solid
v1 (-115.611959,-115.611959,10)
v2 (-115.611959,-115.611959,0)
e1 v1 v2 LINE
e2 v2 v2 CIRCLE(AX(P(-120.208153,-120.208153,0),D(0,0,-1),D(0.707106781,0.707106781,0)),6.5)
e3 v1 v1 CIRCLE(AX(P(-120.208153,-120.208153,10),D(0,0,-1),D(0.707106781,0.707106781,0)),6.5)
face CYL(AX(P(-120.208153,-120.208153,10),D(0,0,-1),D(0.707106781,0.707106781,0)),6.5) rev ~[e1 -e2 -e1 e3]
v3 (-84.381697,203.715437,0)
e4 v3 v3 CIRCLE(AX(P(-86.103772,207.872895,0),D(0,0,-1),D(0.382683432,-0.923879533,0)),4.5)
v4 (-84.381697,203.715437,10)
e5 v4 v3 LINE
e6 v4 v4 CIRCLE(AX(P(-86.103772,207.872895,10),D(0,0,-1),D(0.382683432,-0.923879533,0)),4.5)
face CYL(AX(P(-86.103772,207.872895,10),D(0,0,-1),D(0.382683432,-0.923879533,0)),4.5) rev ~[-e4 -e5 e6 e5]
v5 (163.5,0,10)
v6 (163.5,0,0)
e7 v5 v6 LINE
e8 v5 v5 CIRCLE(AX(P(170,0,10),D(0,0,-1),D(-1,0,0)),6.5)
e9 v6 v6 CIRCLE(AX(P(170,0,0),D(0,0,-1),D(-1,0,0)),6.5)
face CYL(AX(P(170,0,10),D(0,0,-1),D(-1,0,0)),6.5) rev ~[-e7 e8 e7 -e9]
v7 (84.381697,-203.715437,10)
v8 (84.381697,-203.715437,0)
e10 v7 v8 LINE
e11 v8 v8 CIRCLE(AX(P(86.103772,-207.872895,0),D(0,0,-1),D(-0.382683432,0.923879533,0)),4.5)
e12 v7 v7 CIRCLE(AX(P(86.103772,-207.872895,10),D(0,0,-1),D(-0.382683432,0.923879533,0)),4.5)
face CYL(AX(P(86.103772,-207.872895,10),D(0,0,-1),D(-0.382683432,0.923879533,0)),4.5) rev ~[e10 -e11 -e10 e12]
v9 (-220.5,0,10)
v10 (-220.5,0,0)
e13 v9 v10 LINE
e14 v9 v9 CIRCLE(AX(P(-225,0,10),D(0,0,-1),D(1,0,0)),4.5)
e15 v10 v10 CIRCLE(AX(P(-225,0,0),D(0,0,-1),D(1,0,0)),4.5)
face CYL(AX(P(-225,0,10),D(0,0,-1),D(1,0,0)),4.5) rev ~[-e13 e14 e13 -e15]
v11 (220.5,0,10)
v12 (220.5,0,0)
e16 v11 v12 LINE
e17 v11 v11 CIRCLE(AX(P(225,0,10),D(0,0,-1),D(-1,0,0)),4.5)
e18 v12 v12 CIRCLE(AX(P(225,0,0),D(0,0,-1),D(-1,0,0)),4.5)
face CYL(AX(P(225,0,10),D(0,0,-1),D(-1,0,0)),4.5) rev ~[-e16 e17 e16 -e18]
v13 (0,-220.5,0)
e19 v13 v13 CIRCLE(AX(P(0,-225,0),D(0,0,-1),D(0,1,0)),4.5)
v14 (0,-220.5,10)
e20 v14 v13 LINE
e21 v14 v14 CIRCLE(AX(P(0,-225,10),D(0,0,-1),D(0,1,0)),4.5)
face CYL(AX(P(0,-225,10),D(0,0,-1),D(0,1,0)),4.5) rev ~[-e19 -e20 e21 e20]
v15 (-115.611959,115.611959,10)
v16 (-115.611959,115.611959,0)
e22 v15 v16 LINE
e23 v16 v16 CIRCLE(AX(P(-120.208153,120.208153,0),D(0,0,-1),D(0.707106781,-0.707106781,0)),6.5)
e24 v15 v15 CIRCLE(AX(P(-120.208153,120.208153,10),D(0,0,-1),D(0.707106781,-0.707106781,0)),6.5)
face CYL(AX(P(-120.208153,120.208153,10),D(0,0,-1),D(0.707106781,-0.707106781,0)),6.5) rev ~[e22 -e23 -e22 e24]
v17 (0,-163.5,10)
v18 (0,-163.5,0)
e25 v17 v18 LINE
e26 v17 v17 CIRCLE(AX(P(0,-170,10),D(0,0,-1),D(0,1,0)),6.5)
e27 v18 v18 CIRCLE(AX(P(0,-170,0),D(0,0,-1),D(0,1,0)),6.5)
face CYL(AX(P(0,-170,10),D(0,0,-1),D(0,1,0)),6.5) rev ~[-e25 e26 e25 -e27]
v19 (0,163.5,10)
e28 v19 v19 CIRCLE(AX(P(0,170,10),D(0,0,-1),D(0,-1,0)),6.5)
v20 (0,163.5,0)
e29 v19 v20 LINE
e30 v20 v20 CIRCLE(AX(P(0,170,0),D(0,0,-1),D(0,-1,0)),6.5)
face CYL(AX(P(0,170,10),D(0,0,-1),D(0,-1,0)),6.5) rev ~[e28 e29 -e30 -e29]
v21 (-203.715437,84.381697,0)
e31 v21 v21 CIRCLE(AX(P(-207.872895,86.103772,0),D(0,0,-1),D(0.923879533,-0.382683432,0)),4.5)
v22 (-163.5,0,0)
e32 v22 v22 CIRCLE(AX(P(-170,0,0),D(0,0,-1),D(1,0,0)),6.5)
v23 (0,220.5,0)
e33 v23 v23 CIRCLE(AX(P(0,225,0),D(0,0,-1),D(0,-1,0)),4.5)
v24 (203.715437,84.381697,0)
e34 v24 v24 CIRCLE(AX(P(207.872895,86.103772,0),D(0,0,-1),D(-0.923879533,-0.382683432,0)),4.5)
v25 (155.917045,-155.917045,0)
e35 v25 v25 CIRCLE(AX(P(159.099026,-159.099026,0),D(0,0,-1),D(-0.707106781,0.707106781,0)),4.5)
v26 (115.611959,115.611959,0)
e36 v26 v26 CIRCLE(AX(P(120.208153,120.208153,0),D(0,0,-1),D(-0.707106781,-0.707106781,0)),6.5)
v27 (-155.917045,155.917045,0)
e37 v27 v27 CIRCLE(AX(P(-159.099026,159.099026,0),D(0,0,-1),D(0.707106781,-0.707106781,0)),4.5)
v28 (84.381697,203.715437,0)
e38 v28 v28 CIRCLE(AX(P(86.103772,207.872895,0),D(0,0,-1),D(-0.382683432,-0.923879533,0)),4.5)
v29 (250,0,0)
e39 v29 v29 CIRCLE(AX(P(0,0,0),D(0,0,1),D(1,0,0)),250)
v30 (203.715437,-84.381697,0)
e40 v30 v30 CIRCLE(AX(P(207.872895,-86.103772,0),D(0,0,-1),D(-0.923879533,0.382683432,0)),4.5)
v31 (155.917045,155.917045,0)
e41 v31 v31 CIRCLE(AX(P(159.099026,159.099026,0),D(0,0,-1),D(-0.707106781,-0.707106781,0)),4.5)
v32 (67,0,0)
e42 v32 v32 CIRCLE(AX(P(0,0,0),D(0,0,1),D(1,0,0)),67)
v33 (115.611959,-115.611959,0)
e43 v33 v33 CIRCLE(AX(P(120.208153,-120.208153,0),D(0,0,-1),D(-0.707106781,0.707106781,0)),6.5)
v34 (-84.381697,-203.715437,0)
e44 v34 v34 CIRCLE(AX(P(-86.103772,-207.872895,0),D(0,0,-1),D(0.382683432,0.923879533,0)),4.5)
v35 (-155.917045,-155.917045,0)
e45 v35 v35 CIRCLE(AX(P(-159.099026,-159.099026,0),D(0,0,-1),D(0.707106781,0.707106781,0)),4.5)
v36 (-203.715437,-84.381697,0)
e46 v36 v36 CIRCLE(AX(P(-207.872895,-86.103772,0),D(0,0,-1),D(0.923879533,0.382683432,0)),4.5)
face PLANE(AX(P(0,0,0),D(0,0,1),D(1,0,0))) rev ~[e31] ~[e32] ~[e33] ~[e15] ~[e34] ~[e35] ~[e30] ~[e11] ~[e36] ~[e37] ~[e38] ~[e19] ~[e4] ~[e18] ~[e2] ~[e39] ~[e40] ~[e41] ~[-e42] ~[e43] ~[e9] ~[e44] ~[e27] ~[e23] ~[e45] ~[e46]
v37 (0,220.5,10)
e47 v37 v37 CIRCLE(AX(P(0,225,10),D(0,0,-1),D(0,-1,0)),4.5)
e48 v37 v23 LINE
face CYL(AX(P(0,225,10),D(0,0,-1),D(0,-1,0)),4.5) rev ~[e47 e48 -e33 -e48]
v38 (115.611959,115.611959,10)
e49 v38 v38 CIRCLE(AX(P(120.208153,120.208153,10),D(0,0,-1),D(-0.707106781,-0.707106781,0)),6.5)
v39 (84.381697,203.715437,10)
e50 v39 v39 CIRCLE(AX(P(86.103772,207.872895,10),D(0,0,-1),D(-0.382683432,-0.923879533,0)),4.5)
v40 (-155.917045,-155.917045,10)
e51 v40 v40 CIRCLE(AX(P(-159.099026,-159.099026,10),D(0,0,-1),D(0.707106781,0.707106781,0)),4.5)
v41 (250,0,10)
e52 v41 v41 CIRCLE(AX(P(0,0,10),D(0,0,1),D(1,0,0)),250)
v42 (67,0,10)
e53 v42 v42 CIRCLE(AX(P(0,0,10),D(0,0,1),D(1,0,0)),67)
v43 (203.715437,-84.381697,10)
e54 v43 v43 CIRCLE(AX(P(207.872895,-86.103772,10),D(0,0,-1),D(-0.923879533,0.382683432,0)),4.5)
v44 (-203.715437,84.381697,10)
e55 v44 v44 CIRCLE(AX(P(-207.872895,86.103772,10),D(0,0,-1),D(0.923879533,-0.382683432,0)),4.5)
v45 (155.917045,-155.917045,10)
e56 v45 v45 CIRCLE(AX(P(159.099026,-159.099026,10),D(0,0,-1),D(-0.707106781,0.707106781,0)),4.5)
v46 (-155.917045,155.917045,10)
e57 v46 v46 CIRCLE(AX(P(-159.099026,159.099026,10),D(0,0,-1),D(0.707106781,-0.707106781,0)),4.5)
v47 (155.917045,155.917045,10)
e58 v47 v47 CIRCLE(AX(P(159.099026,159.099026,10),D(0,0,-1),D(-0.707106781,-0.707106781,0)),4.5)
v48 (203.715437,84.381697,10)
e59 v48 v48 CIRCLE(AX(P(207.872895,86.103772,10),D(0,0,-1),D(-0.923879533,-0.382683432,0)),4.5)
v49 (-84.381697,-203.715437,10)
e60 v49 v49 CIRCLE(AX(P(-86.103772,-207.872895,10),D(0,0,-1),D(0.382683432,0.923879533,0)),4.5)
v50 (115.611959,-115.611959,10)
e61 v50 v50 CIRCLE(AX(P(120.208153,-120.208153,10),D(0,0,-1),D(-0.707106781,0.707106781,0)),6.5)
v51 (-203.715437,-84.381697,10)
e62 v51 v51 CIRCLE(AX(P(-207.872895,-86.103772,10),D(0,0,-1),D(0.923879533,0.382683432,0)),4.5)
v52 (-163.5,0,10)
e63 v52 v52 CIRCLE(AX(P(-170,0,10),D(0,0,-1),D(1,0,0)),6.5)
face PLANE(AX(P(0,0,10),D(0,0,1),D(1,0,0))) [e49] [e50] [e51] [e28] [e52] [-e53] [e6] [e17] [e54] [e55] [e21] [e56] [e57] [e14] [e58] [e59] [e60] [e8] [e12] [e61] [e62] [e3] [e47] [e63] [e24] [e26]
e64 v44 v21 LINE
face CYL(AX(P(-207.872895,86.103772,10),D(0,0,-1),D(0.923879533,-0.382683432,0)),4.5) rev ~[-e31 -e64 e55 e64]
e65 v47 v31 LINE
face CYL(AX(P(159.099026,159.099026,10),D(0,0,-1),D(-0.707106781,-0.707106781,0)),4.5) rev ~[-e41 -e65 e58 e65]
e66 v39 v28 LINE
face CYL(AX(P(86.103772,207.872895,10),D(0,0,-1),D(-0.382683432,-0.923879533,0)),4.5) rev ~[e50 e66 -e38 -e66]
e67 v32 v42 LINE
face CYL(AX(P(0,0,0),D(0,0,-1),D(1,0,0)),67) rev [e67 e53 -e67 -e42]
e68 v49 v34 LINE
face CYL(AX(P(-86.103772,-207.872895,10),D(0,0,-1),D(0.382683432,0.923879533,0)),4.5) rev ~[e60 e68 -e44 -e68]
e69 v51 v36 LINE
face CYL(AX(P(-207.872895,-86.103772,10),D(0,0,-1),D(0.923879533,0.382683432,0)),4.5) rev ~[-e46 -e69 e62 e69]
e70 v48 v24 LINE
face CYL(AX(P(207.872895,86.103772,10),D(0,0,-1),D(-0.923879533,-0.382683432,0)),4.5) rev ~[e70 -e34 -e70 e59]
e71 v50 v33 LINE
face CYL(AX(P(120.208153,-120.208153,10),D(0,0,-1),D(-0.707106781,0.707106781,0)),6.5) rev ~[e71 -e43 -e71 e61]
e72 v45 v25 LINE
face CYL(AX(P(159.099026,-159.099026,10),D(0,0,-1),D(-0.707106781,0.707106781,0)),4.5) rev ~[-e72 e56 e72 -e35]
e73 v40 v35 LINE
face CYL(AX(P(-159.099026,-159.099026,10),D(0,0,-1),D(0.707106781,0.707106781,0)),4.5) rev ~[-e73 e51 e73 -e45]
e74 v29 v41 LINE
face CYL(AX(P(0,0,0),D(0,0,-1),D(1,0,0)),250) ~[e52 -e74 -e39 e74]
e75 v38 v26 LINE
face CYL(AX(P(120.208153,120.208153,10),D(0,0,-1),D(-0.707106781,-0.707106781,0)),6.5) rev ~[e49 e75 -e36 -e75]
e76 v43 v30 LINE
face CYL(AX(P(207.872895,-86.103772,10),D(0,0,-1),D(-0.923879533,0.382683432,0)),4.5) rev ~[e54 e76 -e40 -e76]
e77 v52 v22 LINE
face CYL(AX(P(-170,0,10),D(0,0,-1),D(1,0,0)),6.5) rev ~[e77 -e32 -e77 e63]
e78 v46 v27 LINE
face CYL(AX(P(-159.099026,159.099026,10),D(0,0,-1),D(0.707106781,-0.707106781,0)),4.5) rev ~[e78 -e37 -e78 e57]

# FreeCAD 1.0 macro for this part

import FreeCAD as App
import Part
import Sketcher
Q = App.Units.Quantity

doc = App.newDocument("Part")
body = doc.addObject("PartDesign::Body", "Body")

# Sketch on XY plane
sketch1 = doc.addObject("Sketcher::SketchObject", "Sketch")
body.addObject(sketch1)
sketch1.AttachmentSupport = (doc.XY_Plane, [""])
sketch1.MapMode = "FlatFace"
sketch1.addGeometry([
    Part.Circle(App.Vector(0, 0, 0), App.Vector(0, 0, 1), 250),
    Part.Circle(App.Vector(0, 0, 0), App.Vector(0, 0, 1), 67),
], False)
sketch1.addConstraint([
    Sketcher.Constraint("Coincident", 0, 3, -1, 1),
    Sketcher.Constraint("Coincident", 1, 3, -1, 1),
    Sketcher.Constraint("Diameter", 0, Q("500 mm")),
    Sketcher.Constraint("Diameter", 1, Q("134 mm")),
])
pad1 = doc.addObject("PartDesign::Pad", "Pad")
body.addObject(pad1)
pad1.Profile = sketch1
pad1.Length = 10

# Sketch on XY plane
sketch2 = doc.addObject("Sketcher::SketchObject", "Sketch001")
body.addObject(sketch2)
sketch2.AttachmentSupport = (doc.XY_Plane, [""])
sketch2.MapMode = "FlatFace"
sketch2.AttachmentOffset = App.Placement(App.Vector(0, 0, 10), App.Rotation())
sketch2.addGeometry(Part.Circle(App.Vector(0, 225, 0), App.Vector(0, 0, 1), 4.5), False)
sketch2.addConstraint([
    Sketcher.Constraint("PointOnObject", 0, 3, -2),
    Sketcher.Constraint("Diameter", 0, Q("9 mm")),
    Sketcher.Constraint("DistanceY", -1, 1, 0, 3, Q("225 mm")),
])
doc.recompute()
hole = doc.addObject("PartDesign::Hole", "Hole")
body.addObject(hole)
hole.Profile = sketch2
hole.ThreadType = "None"
hole.Diameter = 9
hole.DepthType = "ThroughAll"
doc.recompute()

polarpattern = doc.addObject("PartDesign::PolarPattern", "PolarPattern")
body.addObject(polarpattern)
polarpattern.Originals = [hole]
polarpattern.Axis = (doc.Z_Axis, [""])
polarpattern.Angle = 360
polarpattern.Occurrences = 16
body.Tip = polarpattern

# Sketch on XY plane
sketch3 = doc.addObject("Sketcher::SketchObject", "Sketch002")
body.addObject(sketch3)
sketch3.AttachmentSupport = (doc.XY_Plane, [""])
sketch3.MapMode = "FlatFace"
sketch3.AttachmentOffset = App.Placement(App.Vector(0, 0, 10), App.Rotation())
sketch3.addGeometry(Part.Circle(App.Vector(0, 170, 0), App.Vector(0, 0, 1), 6), False)
sketch3.addConstraint([
    Sketcher.Constraint("PointOnObject", 0, 3, -2),
    Sketcher.Constraint("Diameter", 0, Q("13 mm")),
    Sketcher.Constraint("DistanceY", -1, 1, 0, 3, Q("170 mm")),
])
doc.recompute()
hole2 = doc.addObject("PartDesign::Hole", "Hole001")
body.addObject(hole2)
hole2.Profile = sketch3
hole2.ThreadType = "None"
hole2.Diameter = 13
hole2.DepthType = "ThroughAll"
doc.recompute()

polarpattern2 = doc.addObject("PartDesign::PolarPattern", "PolarPattern001")
body.addObject(polarpattern2)
polarpattern2.Originals = [hole2]
polarpattern2.Axis = (doc.Z_Axis, [""])
polarpattern2.Angle = 360
polarpattern2.Occurrences = 8
body.Tip = polarpattern2

doc.recompute()
